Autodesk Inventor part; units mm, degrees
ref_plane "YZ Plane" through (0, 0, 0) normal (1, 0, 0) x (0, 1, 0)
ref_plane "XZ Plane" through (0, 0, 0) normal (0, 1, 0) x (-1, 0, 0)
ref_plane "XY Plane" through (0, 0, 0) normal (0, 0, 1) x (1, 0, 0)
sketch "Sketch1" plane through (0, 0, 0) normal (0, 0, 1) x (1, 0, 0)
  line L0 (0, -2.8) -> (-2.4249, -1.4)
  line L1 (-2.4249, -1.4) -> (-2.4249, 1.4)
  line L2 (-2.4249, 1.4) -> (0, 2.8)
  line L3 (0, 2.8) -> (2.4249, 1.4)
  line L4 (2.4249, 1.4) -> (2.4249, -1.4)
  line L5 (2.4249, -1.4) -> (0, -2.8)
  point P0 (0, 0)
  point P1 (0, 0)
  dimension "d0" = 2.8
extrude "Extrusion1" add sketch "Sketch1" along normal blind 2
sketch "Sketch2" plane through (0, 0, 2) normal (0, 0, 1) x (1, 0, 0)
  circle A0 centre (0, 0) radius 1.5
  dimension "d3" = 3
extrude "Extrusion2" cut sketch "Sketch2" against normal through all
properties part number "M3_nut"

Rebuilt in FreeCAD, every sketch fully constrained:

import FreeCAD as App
import Part
import Sketcher
from FreeCAD import Vector


def add_polygon(sketch, points):
    """Adds a closed chain of lines whose ends are joined by coincident constraints."""
    first, n = sketch.GeometryCount, len(points)
    for a, b in zip(points, points[1:] + points[:1]):
        sketch.addGeometry(Part.LineSegment(App.Vector(*a, 0), App.Vector(*b, 0)), False)
    for i in range(n):
        sketch.addConstraint(Sketcher.Constraint("Coincident", first + i, 2, first + (i + 1) % n, 1))

doc = App.newDocument("Part")
params = doc.addObject("Spreadsheet::Sheet", "Params")
for row, (alias, value) in enumerate([
    ("sketch1_height", "2.8 mm"),
    ("sketch1_length", "2.8 mm"),
    ("pad1_length", "2 mm"),
    ("sketch2_diameter", "3 mm"),
], start=1):
    params.set(f"A{row}", alias)
    params.set(f"B{row}", "=" + value)
    params.setAlias(f"B{row}", alias)

body = doc.addObject("PartDesign::Body", "Body")

# Sketch on XY plane
sketch1 = body.newObject("Sketcher::SketchObject", "Sketch")
sketch1.AttachmentSupport = (doc.getObject("XY_Plane"), [""])
sketch1.MapMode = "FlatFace"
add_polygon(sketch1, [(-2.4, -1.4), (0, -2.8), (2.4, -1.4), (2.4, 1.4), (0, 2.8), (-2.4, 1.4)])  # lines 0-5
sketch1.addConstraint([
    Sketcher.Constraint("Vertical", 2),
    Sketcher.Constraint("Vertical", 5),
    Sketcher.Constraint("Symmetric", 0, 2, 3, 2, -1, 1),
    Sketcher.Constraint("Symmetric", 1, 2, 4, 2, -1, 1),
    Sketcher.Constraint("PointOnObject", 0, 2, -2),
    Sketcher.Constraint("Parallel", 0, 3),
    Sketcher.Constraint("Horizontal", 2, 2, 4, 2),
    Sketcher.Constraint("DistanceY", 2, 1, 2, 2, 2.8),
    Sketcher.Constraint("Distance", 0, 2.8),
    Sketcher.Constraint("DistanceY", 0, 2, -1, 1, 2.8),
])
sketch1.setExpression("Constraints[13]", "Params.sketch1_height")
sketch1.setExpression("Constraints[14]", "Params.sketch1_length")
pad1 = body.newObject("PartDesign::Pad", "Pad")
pad1.Profile = sketch1
pad1.setExpression("Length", "Params.pad1_length")

# Sketch on XY plane
sketch2 = body.newObject("Sketcher::SketchObject", "Sketch001")
sketch2.AttachmentSupport = (doc.getObject("XY_Plane"), [""])
sketch2.MapMode = "FlatFace"
sketch2.AttachmentOffset = App.Placement(Vector(0, 0, 2), App.Rotation())
sketch2.addGeometry(Part.Circle(Vector(0, 0, 0), Vector(0, 0, 1), 1.5), False)
sketch2.addConstraint([
    Sketcher.Constraint("Coincident", 0, 3, -1, 1),
    Sketcher.Constraint("Diameter", 0, 3.0),
])
sketch2.setExpression("Constraints[1]", "Params.sketch2_diameter")
pocket1 = body.newObject("PartDesign::Pocket", "Pocket")
pocket1.Profile = sketch2
pocket1.Type = "ThroughAll"

doc.recompute()
